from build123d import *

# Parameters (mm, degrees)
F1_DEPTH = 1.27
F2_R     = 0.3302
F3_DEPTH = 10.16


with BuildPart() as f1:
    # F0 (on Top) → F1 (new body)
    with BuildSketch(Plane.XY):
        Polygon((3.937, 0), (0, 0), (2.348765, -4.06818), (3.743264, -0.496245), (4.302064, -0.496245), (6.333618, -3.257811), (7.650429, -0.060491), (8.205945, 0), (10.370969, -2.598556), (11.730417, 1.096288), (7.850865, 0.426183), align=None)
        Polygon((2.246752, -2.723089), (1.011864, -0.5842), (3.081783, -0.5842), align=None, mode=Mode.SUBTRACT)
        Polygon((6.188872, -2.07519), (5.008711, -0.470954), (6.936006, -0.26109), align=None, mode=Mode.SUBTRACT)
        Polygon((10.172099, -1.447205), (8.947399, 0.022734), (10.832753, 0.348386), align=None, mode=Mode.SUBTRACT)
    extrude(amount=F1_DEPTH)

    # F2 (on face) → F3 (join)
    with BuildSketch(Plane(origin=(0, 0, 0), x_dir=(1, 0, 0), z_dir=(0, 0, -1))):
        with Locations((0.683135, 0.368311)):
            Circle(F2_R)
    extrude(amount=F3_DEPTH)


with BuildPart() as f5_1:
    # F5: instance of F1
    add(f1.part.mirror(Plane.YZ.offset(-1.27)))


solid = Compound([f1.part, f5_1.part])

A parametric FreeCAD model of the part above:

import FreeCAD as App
import Part
import Sketcher
Q = App.Units.Quantity


def add_polygon(sketch, points):
    """Adds a closed chain of lines whose ends are joined by coincident constraints."""
    first, n = sketch.GeometryCount, len(points)
    for a, b in zip(points, points[1:] + points[:1]):
        sketch.addGeometry(Part.LineSegment(App.Vector(*a, 0), App.Vector(*b, 0)), False)
    for i in range(n):
        sketch.addConstraint(Sketcher.Constraint("Coincident", first + i, 2, first + (i + 1) % n, 1))

doc = App.newDocument("Part")
body = doc.addObject("PartDesign::Body", "Body")

# Sketch on XY plane
sketch1 = body.newObject("Sketcher::SketchObject", "Sketch")
sketch1.AttachmentSupport = (doc.getObject("XY_Plane"), [""])
sketch1.MapMode = "FlatFace"
add_polygon(sketch1, [(3.937, 0), (0, 0), (2.348765, -4.06818), (3.743264, -0.496245), (4.302064, -0.496245), (6.333618, -3.257811), (7.650429, -0.060491), (8.205945, 0), (10.370969, -2.598556), (11.730417, 1.096288), (7.850865, 0.426183)])  # lines 0-10
add_polygon(sketch1, [(3.081783, -0.5842), (2.246752, -2.723089), (1.011864, -0.5842)])  # lines 11-13
add_polygon(sketch1, [(6.936006, -0.26109), (6.188872, -2.07519), (5.008711, -0.470954)])  # lines 14-16
add_polygon(sketch1, [(10.832753, 0.348386), (10.172099, -1.447205), (8.947399, 0.022734)])  # lines 17-19
sketch1.addConstraint(Sketcher.Constraint("Horizontal", 0))
sketch1.addConstraint(Sketcher.Constraint("Horizontal", 3))
sketch1.addConstraint(Sketcher.Constraint("Horizontal", 13))
sketch1.addConstraint(Sketcher.Constraint("Coincident", 0, 2, -1, 1))
sketch1.addConstraint(Sketcher.Constraint("PointOnObject", 6, 2, -1))
sketch1.addConstraint(Sketcher.Constraint("DistanceX", 0, 2, 0, 1, Q("0.155 in")))
sketch1.addConstraint(Sketcher.Constraint("DistanceX", 3, 1, 3, 2, Q("0.022 in")))
sketch1.addConstraint(Sketcher.Constraint("Distance", 6, Q("0.022 in")))
sketch1.addConstraint(Sketcher.Constraint("Distance", 8, Q("0.155 in")))
sketch1.addConstraint(Sketcher.Constraint("Distance", 9, Q("0.155 in")))
sketch1.addConstraint(Sketcher.Constraint("Distance", 10, Q("0.155 in")))
sketch1.addConstraint(Sketcher.Constraint("DistanceY", 12, 2, -1, 1, Q("0.023 in")))
sketch1.addConstraint(Sketcher.Constraint("DistanceX", 13, 1, 13, 2, Q("2.069919 mm")))
sketch1.addConstraint(Sketcher.Constraint("DistanceX", -1, 1, 17, 2, Q("10.172099 mm")))
sketch1.addConstraint(Sketcher.Constraint("DistanceX", -1, 1, 18, 2, Q("8.947399 mm")))
sketch1.addConstraint(Sketcher.Constraint("DistanceX", 1, 2, 2, 2, Q("1.394499 mm")))
sketch1.addConstraint(Sketcher.Constraint("DistanceX", 4, 2, 8, 2, Q("5.396799 mm")))
sketch1.addConstraint(Sketcher.Constraint("DistanceY", 4, 2, 8, 2, Q("4.354099 mm")))
sketch1.addConstraint(Sketcher.Constraint("DistanceX", 3, 2, 9, 2, Q("3.548801 mm")))
sketch1.addConstraint(Sketcher.Constraint("DistanceX", 12, 2, 2, 2, Q("2.7314 mm")))
sketch1.addConstraint(Sketcher.Constraint("DistanceY", 14, 2, 5, 2, Q("2.014699 mm")))
sketch1.addConstraint(Sketcher.Constraint("DistanceY", 16, 2, 5, 2, Q("0.200599 mm")))
sketch1.addConstraint(Sketcher.Constraint("DistanceY", 19, 2, 8, 2, Q("0.747902 mm")))
sketch1.addConstraint(Sketcher.Constraint("Distance", 1, Q("4.69753 mm")))
sketch1.addConstraint(Sketcher.Constraint("Distance", 4, Q("3.428332 mm")))
sketch1.addConstraint(Sketcher.Constraint("Distance", 7, Q("3.382281 mm")))
sketch1.addConstraint(Sketcher.Constraint("Distance", 11, Q("2.29611 mm")))
sketch1.addConstraint(Sketcher.Constraint("Distance", 14, Q("1.96193 mm")))
sketch1.addConstraint(Sketcher.Constraint("Distance", 15, Q("1.991571 mm")))
sketch1.addConstraint(Sketcher.Constraint("Distance", 19, Q("1.913272 mm")))
sketch1.addConstraint(Sketcher.Constraint("DistanceY", 1, 2, -1, 1, Q("4.06818 mm")))
sketch1.addConstraint(Sketcher.Constraint("DistanceX", -1, 1, 4, 2, Q("6.333618 mm")))
sketch1.addConstraint(Sketcher.Constraint("DistanceX", -1, 1, 5, 2, Q("7.650429 mm")))
sketch1.addConstraint(Sketcher.Constraint("DistanceY", 5, 2, -1, 1, Q("0.060491 mm")))
sketch1.addConstraint(Sketcher.Constraint("DistanceX", -1, 1, 11, 2, Q("2.246752 mm")))
sketch1.addConstraint(Sketcher.Constraint("DistanceX", -1, 1, 15, 2, Q("5.008711 mm")))
sketch1.addConstraint(Sketcher.Constraint("DistanceX", 3, 2, 14, 2, Q("1.886808 mm")))
sketch1.addConstraint(Sketcher.Constraint("DistanceY", 7, 2, 17, 2, Q("1.151351 mm")))
sketch1.addConstraint(Sketcher.Constraint("DistanceY", 18, 2, 9, 2, Q("0.403449 mm")))
pad1 = body.newObject("PartDesign::Pad", "Pad")
pad1.Profile = sketch1
pad1.Length = Q("0.05 in")

# Sketch on XY plane
sketch2 = body.newObject("Sketcher::SketchObject", "Sketch001")
sketch2.AttachmentSupport = (doc.getObject("XY_Plane"), [""])
sketch2.MapMode = "FlatFace"
sketch2.addGeometry(Part.Circle(App.Vector(0.683135, -0.368311, 0), App.Vector(0, 0, 1), 0.3302), False)
sketch2.addConstraint(Sketcher.Constraint("Diameter", 0, Q("0.026 in")))
sketch2.addConstraint(Sketcher.Constraint("DistanceY", 0, 3, -1, 1, Q("0.368311 mm")))
sketch2.addConstraint(Sketcher.Constraint("DistanceX", -1, 1, 0, 3, Q("0.683135 mm")))
pad2 = body.newObject("PartDesign::Pad", "Pad001")
pad2.Profile = sketch2
pad2.Length = Q("0.4 in")
pad2.Reversed = True
body2 = doc.addObject("PartDesign::Body", "Body001")
doc.recompute()

mirroring = doc.addObject("Part::Mirroring", "Mirroring")
mirroring.Source = body
mirroring.Base = App.Vector(-1.27, 0, 0)
mirroring.Normal = App.Vector(1, 0, 0)
body2.BaseFeature = mirroring
doc.recompute()
mirroring.Visibility = False

doc.recompute()
